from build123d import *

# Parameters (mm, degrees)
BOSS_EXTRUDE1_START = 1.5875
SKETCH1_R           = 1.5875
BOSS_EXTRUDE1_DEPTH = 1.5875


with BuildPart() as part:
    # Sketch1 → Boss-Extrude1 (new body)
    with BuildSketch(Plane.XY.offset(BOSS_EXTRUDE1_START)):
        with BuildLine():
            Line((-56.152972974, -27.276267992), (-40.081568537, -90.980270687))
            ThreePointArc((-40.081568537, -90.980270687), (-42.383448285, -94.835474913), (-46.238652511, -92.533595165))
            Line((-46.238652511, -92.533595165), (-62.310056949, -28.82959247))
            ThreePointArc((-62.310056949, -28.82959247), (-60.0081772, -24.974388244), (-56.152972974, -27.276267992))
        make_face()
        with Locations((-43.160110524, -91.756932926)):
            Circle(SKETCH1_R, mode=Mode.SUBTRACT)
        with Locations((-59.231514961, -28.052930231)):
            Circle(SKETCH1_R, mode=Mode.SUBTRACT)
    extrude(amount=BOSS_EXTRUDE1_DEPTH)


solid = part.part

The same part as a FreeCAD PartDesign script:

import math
import FreeCAD as App
import Part
import Sketcher
from FreeCAD import Vector
Q = App.Units.Quantity

doc = App.newDocument("Part")
body = doc.addObject("PartDesign::Body", "Body")

# Sketch on XY plane
sketch1 = body.newObject("Sketcher::SketchObject", "Sketch")
sketch1.AttachmentSupport = (doc.getObject("XY_Plane"), [""])
sketch1.MapMode = "FlatFace"
sketch1.AttachmentOffset = App.Placement(Vector(0, 0, 0.0625 * 25.4), App.Rotation())
sketch1.addGeometry(Part.LineSegment(Vector(-40.1, -91, 0), Vector(-56.2, -27.3, 0)), False)
sketch1.addGeometry(Part.ArcOfCircle(Part.Circle(Vector(-59.2, -28.1, 0), Vector(0, 0, 1), 3.2), math.radians(14), math.radians(194)), False)
sketch1.addGeometry(Part.LineSegment(Vector(-62.3, -28.8, 0), Vector(-46.2, -92.5, 0)), False)
sketch1.addGeometry(Part.ArcOfCircle(Part.Circle(Vector(-43.2, -91.8, 0), Vector(0, 0, 1), 3.2), math.radians(-166), math.radians(14)), False)
sketch1.addGeometry(Part.Circle(Vector(-43.2, -91.8, 0), Vector(0, 0, 1), 1.6), False)
sketch1.addGeometry(Part.Circle(Vector(-59.2, -28.1, 0), Vector(0, 0, 1), 1.6), False)
sketch1.addConstraint(Sketcher.Constraint("Tangent", 0, 2, 1, 1))
sketch1.addConstraint(Sketcher.Constraint("Tangent", 1, 2, 2, 1))
sketch1.addConstraint(Sketcher.Constraint("Tangent", 2, 2, 3, 1))
sketch1.addConstraint(Sketcher.Constraint("Tangent", 3, 2, 0, 1))
sketch1.addConstraint(Sketcher.Constraint("Coincident", 4, 3, 3, 3))
sketch1.addConstraint(Sketcher.Constraint("Coincident", 5, 3, 1, 3))
sketch1.addConstraint(Sketcher.Constraint("Equal", 1, 3))
sketch1.addConstraint(Sketcher.Constraint("Equal", 4, 5))
sketch1.addConstraint(Sketcher.Constraint("Diameter", 4, Q("0.125 in")))
sketch1.addConstraint(Sketcher.Constraint("Radius", 1, Q("0.125 in")))
sketch1.addConstraint(Sketcher.Constraint("Distance", 0, Q("65.7 mm")))
sketch1.addConstraint(Sketcher.Constraint("DistanceY", 1, 3, -1, 1, Q("28.05293 mm")))
sketch1.addConstraint(Sketcher.Constraint("DistanceX", 3, 3, -1, 1, Q("43.160111 mm")))
sketch1.addConstraint(Sketcher.Constraint("DistanceX", 3, 2, -1, 1, Q("40.081569 mm")))
pad1 = body.newObject("PartDesign::Pad", "Pad")
pad1.Profile = sketch1
pad1.Length = Q("0.0625 in")

doc.recompute()
